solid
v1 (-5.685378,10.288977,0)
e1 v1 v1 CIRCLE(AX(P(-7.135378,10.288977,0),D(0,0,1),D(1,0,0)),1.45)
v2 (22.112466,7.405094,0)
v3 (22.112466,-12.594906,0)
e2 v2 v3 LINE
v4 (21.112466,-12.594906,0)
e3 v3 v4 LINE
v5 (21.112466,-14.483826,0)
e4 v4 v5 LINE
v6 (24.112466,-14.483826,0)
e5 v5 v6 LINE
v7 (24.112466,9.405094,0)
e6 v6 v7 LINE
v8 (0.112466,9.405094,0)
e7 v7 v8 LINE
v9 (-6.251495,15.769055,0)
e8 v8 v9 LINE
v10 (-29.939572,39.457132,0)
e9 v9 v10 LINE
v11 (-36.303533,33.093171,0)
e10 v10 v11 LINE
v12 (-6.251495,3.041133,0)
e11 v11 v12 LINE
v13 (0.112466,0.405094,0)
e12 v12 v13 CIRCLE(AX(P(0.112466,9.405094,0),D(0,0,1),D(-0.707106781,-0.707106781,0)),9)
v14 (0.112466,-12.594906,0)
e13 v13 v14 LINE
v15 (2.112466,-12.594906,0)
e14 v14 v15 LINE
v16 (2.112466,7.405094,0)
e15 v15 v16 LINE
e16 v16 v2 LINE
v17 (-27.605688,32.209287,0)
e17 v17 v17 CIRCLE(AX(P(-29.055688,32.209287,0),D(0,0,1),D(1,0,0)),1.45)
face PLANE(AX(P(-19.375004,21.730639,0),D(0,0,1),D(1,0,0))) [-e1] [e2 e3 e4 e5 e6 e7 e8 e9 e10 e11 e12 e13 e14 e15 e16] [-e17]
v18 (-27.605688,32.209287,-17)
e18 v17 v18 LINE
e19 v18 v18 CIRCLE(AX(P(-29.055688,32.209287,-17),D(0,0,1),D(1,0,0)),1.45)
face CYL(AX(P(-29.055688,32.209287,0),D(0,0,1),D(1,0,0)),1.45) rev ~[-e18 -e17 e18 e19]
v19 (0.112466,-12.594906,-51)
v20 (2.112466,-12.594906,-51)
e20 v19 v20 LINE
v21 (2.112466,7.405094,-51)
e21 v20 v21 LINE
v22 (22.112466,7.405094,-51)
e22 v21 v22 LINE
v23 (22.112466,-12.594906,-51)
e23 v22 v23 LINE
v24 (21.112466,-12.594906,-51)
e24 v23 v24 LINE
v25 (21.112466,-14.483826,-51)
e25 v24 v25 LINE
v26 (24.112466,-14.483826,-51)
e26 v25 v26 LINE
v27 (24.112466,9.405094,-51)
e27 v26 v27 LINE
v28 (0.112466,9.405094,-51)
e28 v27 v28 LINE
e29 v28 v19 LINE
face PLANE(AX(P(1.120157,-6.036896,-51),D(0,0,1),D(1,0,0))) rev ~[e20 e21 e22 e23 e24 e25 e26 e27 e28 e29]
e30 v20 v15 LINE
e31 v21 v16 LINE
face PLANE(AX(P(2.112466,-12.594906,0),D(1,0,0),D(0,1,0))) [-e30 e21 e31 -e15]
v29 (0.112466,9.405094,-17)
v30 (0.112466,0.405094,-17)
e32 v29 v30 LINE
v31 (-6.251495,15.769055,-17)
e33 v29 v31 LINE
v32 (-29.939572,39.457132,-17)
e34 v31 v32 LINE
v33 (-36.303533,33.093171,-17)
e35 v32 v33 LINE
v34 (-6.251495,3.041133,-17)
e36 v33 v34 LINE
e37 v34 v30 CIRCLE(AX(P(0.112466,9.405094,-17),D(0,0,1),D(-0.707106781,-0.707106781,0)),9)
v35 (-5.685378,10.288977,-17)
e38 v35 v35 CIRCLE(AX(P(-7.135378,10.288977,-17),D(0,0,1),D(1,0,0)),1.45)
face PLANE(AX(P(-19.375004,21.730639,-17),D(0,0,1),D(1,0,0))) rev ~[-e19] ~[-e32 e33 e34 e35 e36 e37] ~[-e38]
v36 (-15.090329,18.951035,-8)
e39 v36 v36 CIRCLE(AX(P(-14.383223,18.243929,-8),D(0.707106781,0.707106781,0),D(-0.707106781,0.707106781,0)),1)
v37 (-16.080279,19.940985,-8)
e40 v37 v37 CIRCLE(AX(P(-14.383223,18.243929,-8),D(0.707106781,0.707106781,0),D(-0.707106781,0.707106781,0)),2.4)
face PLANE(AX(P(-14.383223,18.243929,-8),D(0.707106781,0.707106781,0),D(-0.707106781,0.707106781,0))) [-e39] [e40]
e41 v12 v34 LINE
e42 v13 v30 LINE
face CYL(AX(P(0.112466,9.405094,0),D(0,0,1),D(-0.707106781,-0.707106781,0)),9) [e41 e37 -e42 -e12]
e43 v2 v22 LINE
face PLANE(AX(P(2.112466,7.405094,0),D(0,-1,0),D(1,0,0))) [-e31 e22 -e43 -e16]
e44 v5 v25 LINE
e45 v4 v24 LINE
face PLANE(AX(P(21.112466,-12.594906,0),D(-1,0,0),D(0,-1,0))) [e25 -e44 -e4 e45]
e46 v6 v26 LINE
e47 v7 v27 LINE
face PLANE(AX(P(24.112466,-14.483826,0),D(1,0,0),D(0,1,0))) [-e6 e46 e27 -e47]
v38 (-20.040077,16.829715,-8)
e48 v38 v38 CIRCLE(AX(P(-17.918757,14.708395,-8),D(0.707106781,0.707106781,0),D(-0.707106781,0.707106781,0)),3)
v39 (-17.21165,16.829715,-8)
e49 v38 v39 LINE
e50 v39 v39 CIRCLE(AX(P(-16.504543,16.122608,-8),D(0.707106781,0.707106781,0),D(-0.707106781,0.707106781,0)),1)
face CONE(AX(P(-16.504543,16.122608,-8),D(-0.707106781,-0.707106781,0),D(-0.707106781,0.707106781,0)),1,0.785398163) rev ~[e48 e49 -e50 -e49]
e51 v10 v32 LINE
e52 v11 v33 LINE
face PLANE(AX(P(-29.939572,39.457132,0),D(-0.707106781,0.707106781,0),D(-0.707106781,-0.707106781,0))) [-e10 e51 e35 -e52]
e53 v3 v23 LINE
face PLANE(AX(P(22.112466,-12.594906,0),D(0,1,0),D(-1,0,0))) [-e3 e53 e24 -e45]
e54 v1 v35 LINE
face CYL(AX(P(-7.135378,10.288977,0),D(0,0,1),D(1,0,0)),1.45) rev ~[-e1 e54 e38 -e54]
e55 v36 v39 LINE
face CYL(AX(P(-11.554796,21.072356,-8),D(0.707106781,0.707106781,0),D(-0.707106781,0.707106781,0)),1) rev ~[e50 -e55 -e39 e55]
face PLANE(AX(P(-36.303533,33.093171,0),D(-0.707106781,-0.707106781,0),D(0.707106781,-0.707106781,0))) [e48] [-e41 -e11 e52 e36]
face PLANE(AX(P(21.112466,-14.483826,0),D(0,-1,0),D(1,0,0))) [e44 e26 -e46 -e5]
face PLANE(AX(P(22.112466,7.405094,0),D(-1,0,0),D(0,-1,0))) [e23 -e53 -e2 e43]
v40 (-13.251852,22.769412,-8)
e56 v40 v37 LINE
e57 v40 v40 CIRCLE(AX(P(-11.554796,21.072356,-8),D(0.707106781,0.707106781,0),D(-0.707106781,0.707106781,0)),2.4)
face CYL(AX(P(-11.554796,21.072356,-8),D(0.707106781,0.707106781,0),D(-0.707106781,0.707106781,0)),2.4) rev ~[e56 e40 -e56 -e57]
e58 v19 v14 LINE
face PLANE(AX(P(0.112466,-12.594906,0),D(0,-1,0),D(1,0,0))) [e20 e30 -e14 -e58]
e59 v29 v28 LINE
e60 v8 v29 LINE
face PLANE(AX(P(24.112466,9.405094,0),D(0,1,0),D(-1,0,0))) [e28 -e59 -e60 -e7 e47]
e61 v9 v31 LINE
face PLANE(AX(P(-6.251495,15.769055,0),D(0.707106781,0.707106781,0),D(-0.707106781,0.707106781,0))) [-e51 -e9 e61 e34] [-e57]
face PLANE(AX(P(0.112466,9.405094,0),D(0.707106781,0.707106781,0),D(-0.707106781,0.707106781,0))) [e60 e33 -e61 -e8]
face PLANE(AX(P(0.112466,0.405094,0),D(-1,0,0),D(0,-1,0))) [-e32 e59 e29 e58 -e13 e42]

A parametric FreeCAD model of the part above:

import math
import FreeCAD as App
import Part
import Sketcher


def edges_at(feature, points):
    """Names of the edges that pass closest to the given points."""
    edges = feature.Shape.Edges
    near = lambda p: min(range(len(edges)), key=lambda i: edges[i].distToShape(Part.Vertex(*p))[0])
    return sorted({f"Edge{near(p) + 1}" for p in points})


def add_polygon(sketch, points):
    """Adds a closed chain of lines whose ends are joined by coincident constraints."""
    first, n = sketch.GeometryCount, len(points)
    for a, b in zip(points, points[1:] + points[:1]):
        sketch.addGeometry(Part.LineSegment(App.Vector(*a, 0), App.Vector(*b, 0)), False)
    for i in range(n):
        sketch.addConstraint(Sketcher.Constraint("Coincident", first + i, 2, first + (i + 1) % n, 1))

doc = App.newDocument("Part")
body = doc.addObject("PartDesign::Body", "Body")

# Sketch on XY plane
sketch1 = body.newObject("Sketcher::SketchObject", "Sketch")
sketch1.AttachmentSupport = (doc.getObject("XY_Plane"), [""])
sketch1.MapMode = "FlatFace"
sketch1.addGeometry([
    Part.LineSegment(App.Vector(-36.3, 33.1, 0), App.Vector(-6.3, 3, 0)),  # 0
    Part.ArcOfCircle(Part.Circle(App.Vector(0.1, 9.4, 0), App.Vector(0, 0, 1), 9), math.radians(-135), math.radians(-90)),  # 1
    Part.LineSegment(App.Vector(0.1, 0.4, 0), App.Vector(0.1, -12.6, 0)),  # 2
    Part.LineSegment(App.Vector(0.1, -12.6, 0), App.Vector(2.1, -12.6, 0)),  # 3
    Part.LineSegment(App.Vector(2.1, -12.6, 0), App.Vector(2.1, 7.4, 0)),  # 4
    Part.LineSegment(App.Vector(2.1, 7.4, 0), App.Vector(22.1, 7.4, 0)),  # 5
    Part.LineSegment(App.Vector(22.1, 7.4, 0), App.Vector(22.1, -12.6, 0)),  # 6
    Part.LineSegment(App.Vector(22.1, -12.6, 0), App.Vector(21.1, -12.6, 0)),  # 7
    Part.LineSegment(App.Vector(21.1, -12.6, 0), App.Vector(21.1, -14.5, 0)),  # 8
    Part.LineSegment(App.Vector(21.1, -14.5, 0), App.Vector(24.1, -14.5, 0)),  # 9
    Part.LineSegment(App.Vector(24.1, -14.5, 0), App.Vector(24.1, 9.4, 0)),  # 10
    Part.LineSegment(App.Vector(24.1, 9.4, 0), App.Vector(0.1, 9.4, 0)),  # 11
    Part.LineSegment(App.Vector(0.1, 9.4, 0), App.Vector(-6.3, 15.8, 0)),  # 12
    Part.LineSegment(App.Vector(-6.3, 15.8, 0), App.Vector(-29.9, 39.5, 0)),  # 13
    Part.LineSegment(App.Vector(-29.9, 39.5, 0), App.Vector(-36.3, 33.1, 0)),  # 14
    Part.Circle(App.Vector(-7.1, 10.3, 0), App.Vector(0, 0, 1), 1.4),  # 15
    Part.Circle(App.Vector(-29.1, 32.2, 0), App.Vector(0, 0, 1), 1.4),  # 16
], False)
sketch1.addConstraint([
    Sketcher.Constraint("Tangent", 0, 2, 1, 1),
    Sketcher.Constraint("Coincident", 1, 2, 2, 1),
    Sketcher.Constraint("Coincident", 2, 2, 3, 1),
    Sketcher.Constraint("Coincident", 3, 2, 4, 1),
    Sketcher.Constraint("Coincident", 4, 2, 5, 1),
    Sketcher.Constraint("Coincident", 5, 2, 6, 1),
    Sketcher.Constraint("Coincident", 6, 2, 7, 1),
    Sketcher.Constraint("Coincident", 7, 2, 8, 1),
    Sketcher.Constraint("Coincident", 8, 2, 9, 1),
    Sketcher.Constraint("Coincident", 9, 2, 10, 1),
    Sketcher.Constraint("Coincident", 10, 2, 11, 1),
    Sketcher.Constraint("Coincident", 11, 2, 12, 1),
    Sketcher.Constraint("Coincident", 12, 2, 13, 1),
    Sketcher.Constraint("Coincident", 13, 2, 14, 1),
    Sketcher.Constraint("Coincident", 14, 2, 0, 1),
    Sketcher.Constraint("Vertical", 2),
    Sketcher.Constraint("Horizontal", 3),
    Sketcher.Constraint("Vertical", 4),
    Sketcher.Constraint("Horizontal", 5),
    Sketcher.Constraint("Vertical", 6),
    Sketcher.Constraint("Horizontal", 7),
    Sketcher.Constraint("Vertical", 8),
    Sketcher.Constraint("Horizontal", 9),
    Sketcher.Constraint("Vertical", 10),
    Sketcher.Constraint("Horizontal", 11),
    Sketcher.Constraint("Coincident", 11, 2, 1, 3),
    Sketcher.Constraint("Equal", 15, 16),
    Sketcher.Constraint("Parallel", 0, 12),
    Sketcher.Constraint("Parallel", 12, 13),
    Sketcher.Constraint("Perpendicular", 13, 14),
    Sketcher.Constraint("Horizontal", 3, 2, 6, 2),
    Sketcher.Constraint("Vertical", 2, 2, 11, 2),
    Sketcher.Constraint("Vertical", 0, 2, 12, 2),
    Sketcher.Constraint("Equal", 5, 4),
    Sketcher.Constraint("Equal", 12, 14),
    Sketcher.Constraint("Radius", 1, 9.0),
    Sketcher.Constraint("Diameter", 15, 2.9),
    Sketcher.Constraint("DistanceX", 3, 1, 3, 2, 2.0),
    Sketcher.Constraint("DistanceX", 5, 1, 5, 2, 20.0),
    Sketcher.Constraint("DistanceX", 7, 2, 7, 1, 1.0),
    Sketcher.Constraint("DistanceX", 9, 1, 9, 2, 3.0),
    Sketcher.Constraint("DistanceY", 2, 2, 2, 1, 13.0),
    Sketcher.Constraint("Distance", 0, 42.5),
    Sketcher.Constraint("DistanceY", 8, 2, 8, 1, 1.88892),
    Sketcher.Constraint("DistanceX", 15, 3, -1, 1, 7.135378),
    Sketcher.Constraint("DistanceX", 16, 3, -1, 1, 29.055688),
    Sketcher.Constraint("DistanceX", 13, 2, -1, 1, 29.939572),
    Sketcher.Constraint("DistanceY", -1, 1, 14, 2, 33.093171),
    Sketcher.Constraint("DistanceY", 15, 3, 16, 3, 21.92031),
    Sketcher.Constraint("DistanceY", -1, 1, 15, 3, 10.288977),
])
pad1 = body.newObject("PartDesign::Pad", "Pad")
pad1.Profile = sketch1
pad1.Length = 17
pad1.Reversed = True

# Sketch on XY plane
sketch2 = body.newObject("Sketcher::SketchObject", "Sketch001")
sketch2.AttachmentSupport = (doc.getObject("XY_Plane"), [""])
sketch2.MapMode = "FlatFace"
add_polygon(sketch2, [(0.1, -12.6), (2.1, -12.6), (2.1, 7.4), (22.1, 7.4), (22.1, -12.6), (21.1, -12.6), (21.1, -14.5), (24.1, -14.5), (24.1, 9.4), (0.1, 9.4)])  # lines 0-9
sketch2.addConstraint([
    Sketcher.Constraint("Horizontal", 0),
    Sketcher.Constraint("Vertical", 1),
    Sketcher.Constraint("Horizontal", 2),
    Sketcher.Constraint("Vertical", 3),
    Sketcher.Constraint("Horizontal", 4),
    Sketcher.Constraint("Vertical", 5),
    Sketcher.Constraint("Horizontal", 6),
    Sketcher.Constraint("Vertical", 7),
    Sketcher.Constraint("Horizontal", 8),
    Sketcher.Constraint("Vertical", 9),
    Sketcher.Constraint("Horizontal", 0, 2, 3, 2),
    Sketcher.Constraint("Equal", 2, 1),
    Sketcher.Constraint("DistanceX", 0, 1, 0, 2, 2.0),
    Sketcher.Constraint("DistanceX", 2, 1, 2, 2, 20.0),
    Sketcher.Constraint("DistanceX", 4, 2, 4, 1, 1.0),
    Sketcher.Constraint("DistanceX", 6, 1, 6, 2, 3.0),
    Sketcher.Constraint("DistanceY", 9, 2, 9, 1, 22.0),
    Sketcher.Constraint("DistanceY", 5, 2, 5, 1, 1.88892),
    Sketcher.Constraint("DistanceX", -1, 1, 0, 2, 2.112466),
    Sketcher.Constraint("DistanceY", 0, 2, -1, 1, 12.594906),
])
pad2 = body.newObject("PartDesign::Pad", "Pad001")
pad2.Profile = sketch2
pad2.Length = 51
pad2.Reversed = True

# Sketch on an angled plane
sketch3 = body.newObject("Sketcher::SketchObject", "Sketch002")
sketch3.Placement = App.Placement(App.Vector(4.75878, 4.75878, 0), App.Rotation(App.Vector(-0.707106781, 0.707106781, 0), App.Vector(0, 0, 0.999999999), App.Vector(0.707106781, 0.707106781, 0), "ZXY"))
sketch3.addGeometry(Part.Circle(App.Vector(23.1, -8, 0), App.Vector(0, 0, 1), 1), False)
sketch3.addConstraint([
    Sketcher.Constraint("Diameter", 0, 2.0),
    Sketcher.Constraint("DistanceY", 0, 3, -1, 1, 8.0),
    Sketcher.Constraint("DistanceX", -1, 1, 0, 3, 23.07088),
])
pocket1 = body.newObject("PartDesign::Pocket", "Pocket")
pocket1.Profile = sketch3
pocket1.Type = "ThroughAll"

# Sketch on an angled plane
sketch4 = body.newObject("Sketcher::SketchObject", "Sketch003")
sketch4.Placement = App.Placement(App.Vector(4.75878, 4.75878, 0), App.Rotation(App.Vector(-0.707106781, 0.707106781, 0), App.Vector(0, 0, 0.999999999), App.Vector(0.707106781, 0.707106781, 0), "ZXY"))
sketch4.addGeometry([
    Part.Circle(App.Vector(23.1, -8, 0), App.Vector(0, 0, 1), 2.4),
    Part.Circle(App.Vector(23.1, -8, 0), App.Vector(0, 0, 1), 1),
], False)
sketch4.addConstraint([
    Sketcher.Constraint("Coincident", 1, 3, 0, 3),
    Sketcher.Constraint("Diameter", 1, 2.0),
    Sketcher.Constraint("Diameter", 0, 4.8),
    Sketcher.Constraint("DistanceY", 0, 3, -1, 1, 8.0),
    Sketcher.Constraint("DistanceX", -1, 1, 0, 3, 23.07088),
])
pocket2 = body.newObject("PartDesign::Pocket", "Pocket001")
pocket2.Profile = sketch4
pocket2.Length = 4
doc.recompute()

chamfer = body.newObject("PartDesign::Chamfer", "Chamfer")
chamfer.Base = (pocket2, edges_at(pocket2, [(-17.212, 14.001, -8)]))
chamfer.Size = 2

doc.recompute()
